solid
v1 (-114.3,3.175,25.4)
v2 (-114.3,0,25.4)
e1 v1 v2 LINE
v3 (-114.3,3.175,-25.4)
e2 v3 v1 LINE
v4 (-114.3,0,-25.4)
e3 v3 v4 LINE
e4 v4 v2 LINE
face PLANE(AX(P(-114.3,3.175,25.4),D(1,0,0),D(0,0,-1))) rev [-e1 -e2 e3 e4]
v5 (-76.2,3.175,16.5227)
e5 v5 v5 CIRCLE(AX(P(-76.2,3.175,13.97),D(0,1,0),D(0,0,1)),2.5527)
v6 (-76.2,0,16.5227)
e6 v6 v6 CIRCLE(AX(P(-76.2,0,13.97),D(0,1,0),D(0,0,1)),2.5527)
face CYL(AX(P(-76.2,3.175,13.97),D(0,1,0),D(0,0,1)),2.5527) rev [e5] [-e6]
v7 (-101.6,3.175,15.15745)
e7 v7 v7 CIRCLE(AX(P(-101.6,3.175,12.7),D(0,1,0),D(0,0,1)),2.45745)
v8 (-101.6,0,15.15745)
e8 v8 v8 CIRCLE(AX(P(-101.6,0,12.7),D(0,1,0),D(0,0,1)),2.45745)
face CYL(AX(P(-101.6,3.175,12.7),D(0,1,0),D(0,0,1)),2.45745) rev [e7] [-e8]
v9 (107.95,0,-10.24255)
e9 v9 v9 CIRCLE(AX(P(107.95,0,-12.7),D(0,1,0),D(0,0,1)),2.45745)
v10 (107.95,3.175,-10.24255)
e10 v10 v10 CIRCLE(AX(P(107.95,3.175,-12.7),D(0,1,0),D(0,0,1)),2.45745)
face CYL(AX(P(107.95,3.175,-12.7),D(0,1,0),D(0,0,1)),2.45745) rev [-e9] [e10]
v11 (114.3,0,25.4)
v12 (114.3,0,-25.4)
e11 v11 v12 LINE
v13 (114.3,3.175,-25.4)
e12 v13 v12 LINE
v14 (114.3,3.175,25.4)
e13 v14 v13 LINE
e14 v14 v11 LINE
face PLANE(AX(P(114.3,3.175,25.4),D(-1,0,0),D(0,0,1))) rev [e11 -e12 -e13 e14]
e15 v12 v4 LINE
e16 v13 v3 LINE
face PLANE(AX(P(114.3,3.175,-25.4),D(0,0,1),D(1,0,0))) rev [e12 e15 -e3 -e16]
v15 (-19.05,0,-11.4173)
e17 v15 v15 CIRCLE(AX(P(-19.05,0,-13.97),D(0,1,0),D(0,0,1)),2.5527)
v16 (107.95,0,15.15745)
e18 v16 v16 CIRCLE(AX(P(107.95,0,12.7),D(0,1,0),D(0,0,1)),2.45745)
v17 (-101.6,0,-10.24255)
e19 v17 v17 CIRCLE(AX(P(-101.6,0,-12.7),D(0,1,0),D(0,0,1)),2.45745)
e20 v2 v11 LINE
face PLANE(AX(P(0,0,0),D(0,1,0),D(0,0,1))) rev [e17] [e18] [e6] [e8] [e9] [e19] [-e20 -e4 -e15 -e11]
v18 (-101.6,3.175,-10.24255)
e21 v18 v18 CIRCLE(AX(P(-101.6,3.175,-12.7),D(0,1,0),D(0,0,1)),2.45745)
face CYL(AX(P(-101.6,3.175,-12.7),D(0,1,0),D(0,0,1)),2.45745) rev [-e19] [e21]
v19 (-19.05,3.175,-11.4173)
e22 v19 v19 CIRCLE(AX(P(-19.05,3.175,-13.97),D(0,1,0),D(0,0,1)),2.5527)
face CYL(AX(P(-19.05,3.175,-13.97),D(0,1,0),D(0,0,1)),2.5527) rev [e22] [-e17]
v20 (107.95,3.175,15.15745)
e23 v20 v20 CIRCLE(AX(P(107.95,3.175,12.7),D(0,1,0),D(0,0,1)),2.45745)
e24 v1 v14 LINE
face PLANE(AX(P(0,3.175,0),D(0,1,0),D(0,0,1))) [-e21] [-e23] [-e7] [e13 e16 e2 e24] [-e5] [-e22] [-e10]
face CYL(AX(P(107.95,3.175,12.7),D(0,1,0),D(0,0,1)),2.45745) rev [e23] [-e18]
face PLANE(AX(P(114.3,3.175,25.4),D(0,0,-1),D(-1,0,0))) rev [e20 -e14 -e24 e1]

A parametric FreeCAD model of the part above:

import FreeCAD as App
import Part
import Sketcher
Q = App.Units.Quantity


def add_polygon(sketch, points):
    """Adds a closed chain of lines whose ends are joined by coincident constraints."""
    first, n = sketch.GeometryCount, len(points)
    for a, b in zip(points, points[1:] + points[:1]):
        sketch.addGeometry(Part.LineSegment(App.Vector(*a, 0), App.Vector(*b, 0)), False)
    for i in range(n):
        sketch.addConstraint(Sketcher.Constraint("Coincident", first + i, 2, first + (i + 1) % n, 1))

doc = App.newDocument("Part")
params = doc.addObject("Spreadsheet::Sheet", "Params")
for row, (alias, value) in enumerate([
    ("sketch1_width", "9 in"),
    ("sketch1_height", "2 in"),
    ("pad1_length", "0.125 in"),
    ("hole_diameter", "0.1935 in"),
    ("sketch3_diameter", "0.201 in"),
    ("hole2_diameter", "0.201 in"),
], start=1):
    params.set(f"A{row}", alias)
    params.set(f"B{row}", "=" + value)
    params.setAlias(f"B{row}", alias)

body = doc.addObject("PartDesign::Body", "Body")

# Sketch on XZ plane
sketch1 = body.newObject("Sketcher::SketchObject", "Sketch")
sketch1.AttachmentSupport = (doc.getObject("XZ_Plane"), [""])
sketch1.MapMode = "FlatFace"
add_polygon(sketch1, [(-114.3, -25.4), (-114.3, 25.4), (114.3, 25.4), (114.3, -25.4)])  # lines 0-3
sketch1.addConstraint([
    Sketcher.Constraint("Vertical", 0),
    Sketcher.Constraint("Horizontal", 1),
    Sketcher.Constraint("Vertical", 2),
    Sketcher.Constraint("Horizontal", 3),
    Sketcher.Constraint("Symmetric", 0, 2, 2, 2, -1, 1),
    Sketcher.Constraint("DistanceX", 1, 1, 1, 2, Q("9 in")),
    Sketcher.Constraint("DistanceY", 0, 1, 0, 2, Q("2 in")),
])
sketch1.setExpression("Constraints[9]", "Params.sketch1_width")
sketch1.setExpression("Constraints[10]", "Params.sketch1_height")
pad1 = body.newObject("PartDesign::Pad", "Pad")
pad1.Profile = sketch1
pad1.setExpression("Length", "Params.pad1_length")
pad1.Reversed = True

# Sketch on XZ plane
sketch2 = body.newObject("Sketcher::SketchObject", "Sketch001")
sketch2.AttachmentSupport = (doc.getObject("XZ_Plane"), [""])
sketch2.MapMode = "FlatFace"
sketch2.AttachmentOffset = App.Placement(App.Vector(0, 0, -0.125 * 25.4), App.Rotation())
sketch2.addGeometry([
    Part.Circle(App.Vector(107.95, -12.7, 0), App.Vector(0, 0, 1), 2.45745),
    Part.Circle(App.Vector(-101.6, 12.7, 0), App.Vector(0, 0, 1), 2.45745),
    Part.Circle(App.Vector(-101.6, -12.7, 0), App.Vector(0, 0, 1), 2.45745),
    Part.Circle(App.Vector(107.95, 12.7, 0), App.Vector(0, 0, 1), 2.45745),
], False)
sketch2.addConstraint([
    Sketcher.Constraint("Equal", 0, 1),
    Sketcher.Constraint("Equal", 1, 2),
    Sketcher.Constraint("Equal", 2, 3),
    Sketcher.Constraint("Symmetric", 1, 3, 2, 3, -1),
    Sketcher.Constraint("Symmetric", 0, 3, 3, 3, -1),
    Sketcher.Constraint("Horizontal", 0, 3, 2, 3),
    Sketcher.Constraint("DistanceX", 1, 3, -1, 1, Q("4 in")),
    Sketcher.Constraint("DistanceY", 0, 3, 1, 3, Q("1 in")),
    Sketcher.Constraint("Diameter", 0, Q("0.1935 in")),
    Sketcher.Constraint("DistanceX", -1, 1, 0, 3, Q("4.25 in")),
])
doc.recompute()
hole = body.newObject("PartDesign::Hole", "Hole")
hole.Profile = sketch2
hole.ThreadType = "None"
hole.setExpression("Diameter", "Params.hole_diameter")
hole.DepthType = "ThroughAll"
hole.Reversed = True

# Sketch on XZ plane
sketch3 = body.newObject("Sketcher::SketchObject", "Sketch002")
sketch3.AttachmentSupport = (doc.getObject("XZ_Plane"), [""])
sketch3.MapMode = "FlatFace"
sketch3.AttachmentOffset = App.Placement(App.Vector(0, 0, -0.125 * 25.4), App.Rotation())
sketch3.addGeometry([
    Part.Circle(App.Vector(-76.2, 13.97, 0), App.Vector(0, 0, 1), 2.5527),
    Part.Circle(App.Vector(-19.05, -13.97, 0), App.Vector(0, 0, 1), 2.5527),
], False)
sketch3.addConstraint([
    Sketcher.Constraint("Equal", 0, 1),
    Sketcher.Constraint("Diameter", 0, Q("0.201 in")),
    Sketcher.Constraint("DistanceX", 0, 3, -1, 1, Q("3 in")),
    Sketcher.Constraint("DistanceY", 1, 3, 0, 3, Q("1.1 in")),
    Sketcher.Constraint("DistanceY", -1, 1, 0, 3, Q("0.55 in")),
    Sketcher.Constraint("DistanceX", 1, 3, -1, 1, Q("0.75 in")),
])
sketch3.setExpression("Constraints[1]", "Params.sketch3_diameter")
doc.recompute()
hole2 = body.newObject("PartDesign::Hole", "Hole001")
hole2.Profile = sketch3
hole2.ThreadType = "None"
hole2.setExpression("Diameter", "Params.hole2_diameter")
hole2.DepthType = "ThroughAll"
hole2.Reversed = True

doc.recompute()
